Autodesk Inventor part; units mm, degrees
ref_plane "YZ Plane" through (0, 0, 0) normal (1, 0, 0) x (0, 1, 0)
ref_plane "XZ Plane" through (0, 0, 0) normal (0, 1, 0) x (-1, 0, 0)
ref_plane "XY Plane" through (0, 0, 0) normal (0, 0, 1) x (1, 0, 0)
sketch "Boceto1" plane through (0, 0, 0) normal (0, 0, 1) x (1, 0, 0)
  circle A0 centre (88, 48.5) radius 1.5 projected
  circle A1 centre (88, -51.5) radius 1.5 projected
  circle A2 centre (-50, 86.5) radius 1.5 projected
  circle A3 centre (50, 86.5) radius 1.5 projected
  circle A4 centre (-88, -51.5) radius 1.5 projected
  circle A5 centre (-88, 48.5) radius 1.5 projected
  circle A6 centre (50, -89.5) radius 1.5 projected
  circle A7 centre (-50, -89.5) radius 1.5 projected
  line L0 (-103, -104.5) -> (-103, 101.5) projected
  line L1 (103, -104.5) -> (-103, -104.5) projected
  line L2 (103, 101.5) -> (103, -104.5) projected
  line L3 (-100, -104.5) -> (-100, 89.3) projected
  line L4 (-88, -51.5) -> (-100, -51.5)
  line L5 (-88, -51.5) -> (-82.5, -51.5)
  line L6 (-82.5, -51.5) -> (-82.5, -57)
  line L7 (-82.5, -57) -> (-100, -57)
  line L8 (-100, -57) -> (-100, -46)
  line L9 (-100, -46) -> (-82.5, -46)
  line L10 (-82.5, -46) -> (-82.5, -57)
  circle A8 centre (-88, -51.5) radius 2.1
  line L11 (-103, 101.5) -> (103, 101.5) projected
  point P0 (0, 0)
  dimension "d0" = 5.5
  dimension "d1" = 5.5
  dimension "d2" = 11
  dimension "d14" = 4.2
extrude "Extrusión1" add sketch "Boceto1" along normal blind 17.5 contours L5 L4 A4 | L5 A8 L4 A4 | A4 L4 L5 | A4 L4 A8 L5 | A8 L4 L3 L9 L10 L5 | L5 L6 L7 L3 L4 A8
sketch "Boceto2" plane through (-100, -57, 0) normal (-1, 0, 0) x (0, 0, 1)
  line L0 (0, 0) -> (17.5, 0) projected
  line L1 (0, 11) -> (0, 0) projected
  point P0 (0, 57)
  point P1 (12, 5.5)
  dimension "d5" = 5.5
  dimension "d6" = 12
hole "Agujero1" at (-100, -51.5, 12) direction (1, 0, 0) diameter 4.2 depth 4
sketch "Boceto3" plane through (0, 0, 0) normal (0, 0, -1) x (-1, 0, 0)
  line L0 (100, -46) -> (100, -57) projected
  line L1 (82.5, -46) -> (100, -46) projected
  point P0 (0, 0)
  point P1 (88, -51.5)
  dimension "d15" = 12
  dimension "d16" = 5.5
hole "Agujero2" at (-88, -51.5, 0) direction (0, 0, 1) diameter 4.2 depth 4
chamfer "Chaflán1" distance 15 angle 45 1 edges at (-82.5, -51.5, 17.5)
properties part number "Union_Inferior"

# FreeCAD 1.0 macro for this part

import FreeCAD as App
import Part
import Sketcher


def edges_at(feature, points):
    """Names of the edges that pass closest to the given points."""
    edges = feature.Shape.Edges
    near = lambda p: min(range(len(edges)), key=lambda i: edges[i].distToShape(Part.Vertex(*p))[0])
    return sorted({f"Edge{near(p) + 1}" for p in points})

doc = App.newDocument("Part")
body = doc.addObject("PartDesign::Body", "Body")

sketch1 = doc.addObject("Sketcher::SketchObject", "Sketch")
body.addObject(sketch1)
sketch1.AttachmentSupport = (doc.XY_Plane, [""])
sketch1.MapMode = "FlatFace"
sketch1.addGeometry(Part.LineSegment(App.Vector(-100, -46, 0), App.Vector(-100, -57, 0)), False)
sketch1.addGeometry(Part.LineSegment(App.Vector(-100, -57, 0), App.Vector(-82, -57, 0)), False)
sketch1.addGeometry(Part.LineSegment(App.Vector(-82, -57, 0), App.Vector(-82, -46, 0)), False)
sketch1.addGeometry(Part.LineSegment(App.Vector(-82, -46, 0), App.Vector(-100, -46, 0)), False)
sketch1.addConstraint(Sketcher.Constraint("Coincident", 0, 2, 1, 1))
sketch1.addConstraint(Sketcher.Constraint("Coincident", 1, 2, 2, 1))
sketch1.addConstraint(Sketcher.Constraint("Coincident", 2, 2, 3, 1))
sketch1.addConstraint(Sketcher.Constraint("Coincident", 3, 2, 0, 1))
sketch1.addConstraint(Sketcher.Constraint("Vertical", 0))
sketch1.addConstraint(Sketcher.Constraint("Horizontal", 1))
sketch1.addConstraint(Sketcher.Constraint("Vertical", 2))
sketch1.addConstraint(Sketcher.Constraint("Horizontal", 3))
sketch1.addConstraint(Sketcher.Constraint("DistanceY", 0, 2, 0, 1, 11.0))
sketch1.addConstraint(Sketcher.Constraint("DistanceX", 1, 1, 1, 2, 17.5))
sketch1.addConstraint(Sketcher.Constraint("DistanceX", 0, 2, -1, 1, 100.0))
sketch1.addConstraint(Sketcher.Constraint("DistanceY", 0, 2, -1, 1, 57.0))
pad1 = doc.addObject("PartDesign::Pad", "Pad")
body.addObject(pad1)
pad1.Profile = sketch1
pad1.Length = 17.5

sketch2 = doc.addObject("Sketcher::SketchObject", "Sketch001")
body.addObject(sketch2)
sketch2.AttachmentSupport = (doc.YZ_Plane, [""])
sketch2.MapMode = "FlatFace"
sketch2.AttachmentOffset = App.Placement(App.Vector(0, 0, -100), App.Rotation())
sketch2.addGeometry(Part.Circle(App.Vector(-51.5, 12, 0), App.Vector(0, 0, 1), 2.1), False)
sketch2.addConstraint(Sketcher.Constraint("Diameter", 0, 4.2))
sketch2.addConstraint(Sketcher.Constraint("DistanceY", -1, 1, 0, 3, 12.0))
sketch2.addConstraint(Sketcher.Constraint("DistanceX", 0, 3, -1, 1, 51.5))
doc.recompute()
hole = doc.addObject("PartDesign::Hole", "Hole")
body.addObject(hole)
hole.Profile = sketch2
hole.ThreadType = "None"
hole.Diameter = 4.2
hole.DepthType = "Dimension"
hole.Depth = 4
hole.DrillPoint = "Flat"
hole.Reversed = True

sketch3 = doc.addObject("Sketcher::SketchObject", "Sketch002")
body.addObject(sketch3)
sketch3.AttachmentSupport = (doc.XY_Plane, [""])
sketch3.MapMode = "FlatFace"
sketch3.addGeometry(Part.Circle(App.Vector(-88, -51.5, 0), App.Vector(0, 0, 1), 2.1), False)
sketch3.addConstraint(Sketcher.Constraint("Diameter", 0, 4.2))
sketch3.addConstraint(Sketcher.Constraint("DistanceX", 0, 3, -1, 1, 88.0))
sketch3.addConstraint(Sketcher.Constraint("DistanceY", 0, 3, -1, 1, 51.5))
doc.recompute()
hole2 = doc.addObject("PartDesign::Hole", "Hole001")
body.addObject(hole2)
hole2.Profile = sketch3
hole2.ThreadType = "None"
hole2.Diameter = 4.2
hole2.DepthType = "Dimension"
hole2.Depth = 4
hole2.DrillPoint = "Flat"
hole2.Reversed = True
doc.recompute()

chamfer = doc.addObject("PartDesign::Chamfer", "Chamfer")
body.addObject(chamfer)
chamfer.Base = (hole2, edges_at(hole2, [(-82.5, -51.5, 17.5)]))
chamfer.Size = 15

doc.recompute()
